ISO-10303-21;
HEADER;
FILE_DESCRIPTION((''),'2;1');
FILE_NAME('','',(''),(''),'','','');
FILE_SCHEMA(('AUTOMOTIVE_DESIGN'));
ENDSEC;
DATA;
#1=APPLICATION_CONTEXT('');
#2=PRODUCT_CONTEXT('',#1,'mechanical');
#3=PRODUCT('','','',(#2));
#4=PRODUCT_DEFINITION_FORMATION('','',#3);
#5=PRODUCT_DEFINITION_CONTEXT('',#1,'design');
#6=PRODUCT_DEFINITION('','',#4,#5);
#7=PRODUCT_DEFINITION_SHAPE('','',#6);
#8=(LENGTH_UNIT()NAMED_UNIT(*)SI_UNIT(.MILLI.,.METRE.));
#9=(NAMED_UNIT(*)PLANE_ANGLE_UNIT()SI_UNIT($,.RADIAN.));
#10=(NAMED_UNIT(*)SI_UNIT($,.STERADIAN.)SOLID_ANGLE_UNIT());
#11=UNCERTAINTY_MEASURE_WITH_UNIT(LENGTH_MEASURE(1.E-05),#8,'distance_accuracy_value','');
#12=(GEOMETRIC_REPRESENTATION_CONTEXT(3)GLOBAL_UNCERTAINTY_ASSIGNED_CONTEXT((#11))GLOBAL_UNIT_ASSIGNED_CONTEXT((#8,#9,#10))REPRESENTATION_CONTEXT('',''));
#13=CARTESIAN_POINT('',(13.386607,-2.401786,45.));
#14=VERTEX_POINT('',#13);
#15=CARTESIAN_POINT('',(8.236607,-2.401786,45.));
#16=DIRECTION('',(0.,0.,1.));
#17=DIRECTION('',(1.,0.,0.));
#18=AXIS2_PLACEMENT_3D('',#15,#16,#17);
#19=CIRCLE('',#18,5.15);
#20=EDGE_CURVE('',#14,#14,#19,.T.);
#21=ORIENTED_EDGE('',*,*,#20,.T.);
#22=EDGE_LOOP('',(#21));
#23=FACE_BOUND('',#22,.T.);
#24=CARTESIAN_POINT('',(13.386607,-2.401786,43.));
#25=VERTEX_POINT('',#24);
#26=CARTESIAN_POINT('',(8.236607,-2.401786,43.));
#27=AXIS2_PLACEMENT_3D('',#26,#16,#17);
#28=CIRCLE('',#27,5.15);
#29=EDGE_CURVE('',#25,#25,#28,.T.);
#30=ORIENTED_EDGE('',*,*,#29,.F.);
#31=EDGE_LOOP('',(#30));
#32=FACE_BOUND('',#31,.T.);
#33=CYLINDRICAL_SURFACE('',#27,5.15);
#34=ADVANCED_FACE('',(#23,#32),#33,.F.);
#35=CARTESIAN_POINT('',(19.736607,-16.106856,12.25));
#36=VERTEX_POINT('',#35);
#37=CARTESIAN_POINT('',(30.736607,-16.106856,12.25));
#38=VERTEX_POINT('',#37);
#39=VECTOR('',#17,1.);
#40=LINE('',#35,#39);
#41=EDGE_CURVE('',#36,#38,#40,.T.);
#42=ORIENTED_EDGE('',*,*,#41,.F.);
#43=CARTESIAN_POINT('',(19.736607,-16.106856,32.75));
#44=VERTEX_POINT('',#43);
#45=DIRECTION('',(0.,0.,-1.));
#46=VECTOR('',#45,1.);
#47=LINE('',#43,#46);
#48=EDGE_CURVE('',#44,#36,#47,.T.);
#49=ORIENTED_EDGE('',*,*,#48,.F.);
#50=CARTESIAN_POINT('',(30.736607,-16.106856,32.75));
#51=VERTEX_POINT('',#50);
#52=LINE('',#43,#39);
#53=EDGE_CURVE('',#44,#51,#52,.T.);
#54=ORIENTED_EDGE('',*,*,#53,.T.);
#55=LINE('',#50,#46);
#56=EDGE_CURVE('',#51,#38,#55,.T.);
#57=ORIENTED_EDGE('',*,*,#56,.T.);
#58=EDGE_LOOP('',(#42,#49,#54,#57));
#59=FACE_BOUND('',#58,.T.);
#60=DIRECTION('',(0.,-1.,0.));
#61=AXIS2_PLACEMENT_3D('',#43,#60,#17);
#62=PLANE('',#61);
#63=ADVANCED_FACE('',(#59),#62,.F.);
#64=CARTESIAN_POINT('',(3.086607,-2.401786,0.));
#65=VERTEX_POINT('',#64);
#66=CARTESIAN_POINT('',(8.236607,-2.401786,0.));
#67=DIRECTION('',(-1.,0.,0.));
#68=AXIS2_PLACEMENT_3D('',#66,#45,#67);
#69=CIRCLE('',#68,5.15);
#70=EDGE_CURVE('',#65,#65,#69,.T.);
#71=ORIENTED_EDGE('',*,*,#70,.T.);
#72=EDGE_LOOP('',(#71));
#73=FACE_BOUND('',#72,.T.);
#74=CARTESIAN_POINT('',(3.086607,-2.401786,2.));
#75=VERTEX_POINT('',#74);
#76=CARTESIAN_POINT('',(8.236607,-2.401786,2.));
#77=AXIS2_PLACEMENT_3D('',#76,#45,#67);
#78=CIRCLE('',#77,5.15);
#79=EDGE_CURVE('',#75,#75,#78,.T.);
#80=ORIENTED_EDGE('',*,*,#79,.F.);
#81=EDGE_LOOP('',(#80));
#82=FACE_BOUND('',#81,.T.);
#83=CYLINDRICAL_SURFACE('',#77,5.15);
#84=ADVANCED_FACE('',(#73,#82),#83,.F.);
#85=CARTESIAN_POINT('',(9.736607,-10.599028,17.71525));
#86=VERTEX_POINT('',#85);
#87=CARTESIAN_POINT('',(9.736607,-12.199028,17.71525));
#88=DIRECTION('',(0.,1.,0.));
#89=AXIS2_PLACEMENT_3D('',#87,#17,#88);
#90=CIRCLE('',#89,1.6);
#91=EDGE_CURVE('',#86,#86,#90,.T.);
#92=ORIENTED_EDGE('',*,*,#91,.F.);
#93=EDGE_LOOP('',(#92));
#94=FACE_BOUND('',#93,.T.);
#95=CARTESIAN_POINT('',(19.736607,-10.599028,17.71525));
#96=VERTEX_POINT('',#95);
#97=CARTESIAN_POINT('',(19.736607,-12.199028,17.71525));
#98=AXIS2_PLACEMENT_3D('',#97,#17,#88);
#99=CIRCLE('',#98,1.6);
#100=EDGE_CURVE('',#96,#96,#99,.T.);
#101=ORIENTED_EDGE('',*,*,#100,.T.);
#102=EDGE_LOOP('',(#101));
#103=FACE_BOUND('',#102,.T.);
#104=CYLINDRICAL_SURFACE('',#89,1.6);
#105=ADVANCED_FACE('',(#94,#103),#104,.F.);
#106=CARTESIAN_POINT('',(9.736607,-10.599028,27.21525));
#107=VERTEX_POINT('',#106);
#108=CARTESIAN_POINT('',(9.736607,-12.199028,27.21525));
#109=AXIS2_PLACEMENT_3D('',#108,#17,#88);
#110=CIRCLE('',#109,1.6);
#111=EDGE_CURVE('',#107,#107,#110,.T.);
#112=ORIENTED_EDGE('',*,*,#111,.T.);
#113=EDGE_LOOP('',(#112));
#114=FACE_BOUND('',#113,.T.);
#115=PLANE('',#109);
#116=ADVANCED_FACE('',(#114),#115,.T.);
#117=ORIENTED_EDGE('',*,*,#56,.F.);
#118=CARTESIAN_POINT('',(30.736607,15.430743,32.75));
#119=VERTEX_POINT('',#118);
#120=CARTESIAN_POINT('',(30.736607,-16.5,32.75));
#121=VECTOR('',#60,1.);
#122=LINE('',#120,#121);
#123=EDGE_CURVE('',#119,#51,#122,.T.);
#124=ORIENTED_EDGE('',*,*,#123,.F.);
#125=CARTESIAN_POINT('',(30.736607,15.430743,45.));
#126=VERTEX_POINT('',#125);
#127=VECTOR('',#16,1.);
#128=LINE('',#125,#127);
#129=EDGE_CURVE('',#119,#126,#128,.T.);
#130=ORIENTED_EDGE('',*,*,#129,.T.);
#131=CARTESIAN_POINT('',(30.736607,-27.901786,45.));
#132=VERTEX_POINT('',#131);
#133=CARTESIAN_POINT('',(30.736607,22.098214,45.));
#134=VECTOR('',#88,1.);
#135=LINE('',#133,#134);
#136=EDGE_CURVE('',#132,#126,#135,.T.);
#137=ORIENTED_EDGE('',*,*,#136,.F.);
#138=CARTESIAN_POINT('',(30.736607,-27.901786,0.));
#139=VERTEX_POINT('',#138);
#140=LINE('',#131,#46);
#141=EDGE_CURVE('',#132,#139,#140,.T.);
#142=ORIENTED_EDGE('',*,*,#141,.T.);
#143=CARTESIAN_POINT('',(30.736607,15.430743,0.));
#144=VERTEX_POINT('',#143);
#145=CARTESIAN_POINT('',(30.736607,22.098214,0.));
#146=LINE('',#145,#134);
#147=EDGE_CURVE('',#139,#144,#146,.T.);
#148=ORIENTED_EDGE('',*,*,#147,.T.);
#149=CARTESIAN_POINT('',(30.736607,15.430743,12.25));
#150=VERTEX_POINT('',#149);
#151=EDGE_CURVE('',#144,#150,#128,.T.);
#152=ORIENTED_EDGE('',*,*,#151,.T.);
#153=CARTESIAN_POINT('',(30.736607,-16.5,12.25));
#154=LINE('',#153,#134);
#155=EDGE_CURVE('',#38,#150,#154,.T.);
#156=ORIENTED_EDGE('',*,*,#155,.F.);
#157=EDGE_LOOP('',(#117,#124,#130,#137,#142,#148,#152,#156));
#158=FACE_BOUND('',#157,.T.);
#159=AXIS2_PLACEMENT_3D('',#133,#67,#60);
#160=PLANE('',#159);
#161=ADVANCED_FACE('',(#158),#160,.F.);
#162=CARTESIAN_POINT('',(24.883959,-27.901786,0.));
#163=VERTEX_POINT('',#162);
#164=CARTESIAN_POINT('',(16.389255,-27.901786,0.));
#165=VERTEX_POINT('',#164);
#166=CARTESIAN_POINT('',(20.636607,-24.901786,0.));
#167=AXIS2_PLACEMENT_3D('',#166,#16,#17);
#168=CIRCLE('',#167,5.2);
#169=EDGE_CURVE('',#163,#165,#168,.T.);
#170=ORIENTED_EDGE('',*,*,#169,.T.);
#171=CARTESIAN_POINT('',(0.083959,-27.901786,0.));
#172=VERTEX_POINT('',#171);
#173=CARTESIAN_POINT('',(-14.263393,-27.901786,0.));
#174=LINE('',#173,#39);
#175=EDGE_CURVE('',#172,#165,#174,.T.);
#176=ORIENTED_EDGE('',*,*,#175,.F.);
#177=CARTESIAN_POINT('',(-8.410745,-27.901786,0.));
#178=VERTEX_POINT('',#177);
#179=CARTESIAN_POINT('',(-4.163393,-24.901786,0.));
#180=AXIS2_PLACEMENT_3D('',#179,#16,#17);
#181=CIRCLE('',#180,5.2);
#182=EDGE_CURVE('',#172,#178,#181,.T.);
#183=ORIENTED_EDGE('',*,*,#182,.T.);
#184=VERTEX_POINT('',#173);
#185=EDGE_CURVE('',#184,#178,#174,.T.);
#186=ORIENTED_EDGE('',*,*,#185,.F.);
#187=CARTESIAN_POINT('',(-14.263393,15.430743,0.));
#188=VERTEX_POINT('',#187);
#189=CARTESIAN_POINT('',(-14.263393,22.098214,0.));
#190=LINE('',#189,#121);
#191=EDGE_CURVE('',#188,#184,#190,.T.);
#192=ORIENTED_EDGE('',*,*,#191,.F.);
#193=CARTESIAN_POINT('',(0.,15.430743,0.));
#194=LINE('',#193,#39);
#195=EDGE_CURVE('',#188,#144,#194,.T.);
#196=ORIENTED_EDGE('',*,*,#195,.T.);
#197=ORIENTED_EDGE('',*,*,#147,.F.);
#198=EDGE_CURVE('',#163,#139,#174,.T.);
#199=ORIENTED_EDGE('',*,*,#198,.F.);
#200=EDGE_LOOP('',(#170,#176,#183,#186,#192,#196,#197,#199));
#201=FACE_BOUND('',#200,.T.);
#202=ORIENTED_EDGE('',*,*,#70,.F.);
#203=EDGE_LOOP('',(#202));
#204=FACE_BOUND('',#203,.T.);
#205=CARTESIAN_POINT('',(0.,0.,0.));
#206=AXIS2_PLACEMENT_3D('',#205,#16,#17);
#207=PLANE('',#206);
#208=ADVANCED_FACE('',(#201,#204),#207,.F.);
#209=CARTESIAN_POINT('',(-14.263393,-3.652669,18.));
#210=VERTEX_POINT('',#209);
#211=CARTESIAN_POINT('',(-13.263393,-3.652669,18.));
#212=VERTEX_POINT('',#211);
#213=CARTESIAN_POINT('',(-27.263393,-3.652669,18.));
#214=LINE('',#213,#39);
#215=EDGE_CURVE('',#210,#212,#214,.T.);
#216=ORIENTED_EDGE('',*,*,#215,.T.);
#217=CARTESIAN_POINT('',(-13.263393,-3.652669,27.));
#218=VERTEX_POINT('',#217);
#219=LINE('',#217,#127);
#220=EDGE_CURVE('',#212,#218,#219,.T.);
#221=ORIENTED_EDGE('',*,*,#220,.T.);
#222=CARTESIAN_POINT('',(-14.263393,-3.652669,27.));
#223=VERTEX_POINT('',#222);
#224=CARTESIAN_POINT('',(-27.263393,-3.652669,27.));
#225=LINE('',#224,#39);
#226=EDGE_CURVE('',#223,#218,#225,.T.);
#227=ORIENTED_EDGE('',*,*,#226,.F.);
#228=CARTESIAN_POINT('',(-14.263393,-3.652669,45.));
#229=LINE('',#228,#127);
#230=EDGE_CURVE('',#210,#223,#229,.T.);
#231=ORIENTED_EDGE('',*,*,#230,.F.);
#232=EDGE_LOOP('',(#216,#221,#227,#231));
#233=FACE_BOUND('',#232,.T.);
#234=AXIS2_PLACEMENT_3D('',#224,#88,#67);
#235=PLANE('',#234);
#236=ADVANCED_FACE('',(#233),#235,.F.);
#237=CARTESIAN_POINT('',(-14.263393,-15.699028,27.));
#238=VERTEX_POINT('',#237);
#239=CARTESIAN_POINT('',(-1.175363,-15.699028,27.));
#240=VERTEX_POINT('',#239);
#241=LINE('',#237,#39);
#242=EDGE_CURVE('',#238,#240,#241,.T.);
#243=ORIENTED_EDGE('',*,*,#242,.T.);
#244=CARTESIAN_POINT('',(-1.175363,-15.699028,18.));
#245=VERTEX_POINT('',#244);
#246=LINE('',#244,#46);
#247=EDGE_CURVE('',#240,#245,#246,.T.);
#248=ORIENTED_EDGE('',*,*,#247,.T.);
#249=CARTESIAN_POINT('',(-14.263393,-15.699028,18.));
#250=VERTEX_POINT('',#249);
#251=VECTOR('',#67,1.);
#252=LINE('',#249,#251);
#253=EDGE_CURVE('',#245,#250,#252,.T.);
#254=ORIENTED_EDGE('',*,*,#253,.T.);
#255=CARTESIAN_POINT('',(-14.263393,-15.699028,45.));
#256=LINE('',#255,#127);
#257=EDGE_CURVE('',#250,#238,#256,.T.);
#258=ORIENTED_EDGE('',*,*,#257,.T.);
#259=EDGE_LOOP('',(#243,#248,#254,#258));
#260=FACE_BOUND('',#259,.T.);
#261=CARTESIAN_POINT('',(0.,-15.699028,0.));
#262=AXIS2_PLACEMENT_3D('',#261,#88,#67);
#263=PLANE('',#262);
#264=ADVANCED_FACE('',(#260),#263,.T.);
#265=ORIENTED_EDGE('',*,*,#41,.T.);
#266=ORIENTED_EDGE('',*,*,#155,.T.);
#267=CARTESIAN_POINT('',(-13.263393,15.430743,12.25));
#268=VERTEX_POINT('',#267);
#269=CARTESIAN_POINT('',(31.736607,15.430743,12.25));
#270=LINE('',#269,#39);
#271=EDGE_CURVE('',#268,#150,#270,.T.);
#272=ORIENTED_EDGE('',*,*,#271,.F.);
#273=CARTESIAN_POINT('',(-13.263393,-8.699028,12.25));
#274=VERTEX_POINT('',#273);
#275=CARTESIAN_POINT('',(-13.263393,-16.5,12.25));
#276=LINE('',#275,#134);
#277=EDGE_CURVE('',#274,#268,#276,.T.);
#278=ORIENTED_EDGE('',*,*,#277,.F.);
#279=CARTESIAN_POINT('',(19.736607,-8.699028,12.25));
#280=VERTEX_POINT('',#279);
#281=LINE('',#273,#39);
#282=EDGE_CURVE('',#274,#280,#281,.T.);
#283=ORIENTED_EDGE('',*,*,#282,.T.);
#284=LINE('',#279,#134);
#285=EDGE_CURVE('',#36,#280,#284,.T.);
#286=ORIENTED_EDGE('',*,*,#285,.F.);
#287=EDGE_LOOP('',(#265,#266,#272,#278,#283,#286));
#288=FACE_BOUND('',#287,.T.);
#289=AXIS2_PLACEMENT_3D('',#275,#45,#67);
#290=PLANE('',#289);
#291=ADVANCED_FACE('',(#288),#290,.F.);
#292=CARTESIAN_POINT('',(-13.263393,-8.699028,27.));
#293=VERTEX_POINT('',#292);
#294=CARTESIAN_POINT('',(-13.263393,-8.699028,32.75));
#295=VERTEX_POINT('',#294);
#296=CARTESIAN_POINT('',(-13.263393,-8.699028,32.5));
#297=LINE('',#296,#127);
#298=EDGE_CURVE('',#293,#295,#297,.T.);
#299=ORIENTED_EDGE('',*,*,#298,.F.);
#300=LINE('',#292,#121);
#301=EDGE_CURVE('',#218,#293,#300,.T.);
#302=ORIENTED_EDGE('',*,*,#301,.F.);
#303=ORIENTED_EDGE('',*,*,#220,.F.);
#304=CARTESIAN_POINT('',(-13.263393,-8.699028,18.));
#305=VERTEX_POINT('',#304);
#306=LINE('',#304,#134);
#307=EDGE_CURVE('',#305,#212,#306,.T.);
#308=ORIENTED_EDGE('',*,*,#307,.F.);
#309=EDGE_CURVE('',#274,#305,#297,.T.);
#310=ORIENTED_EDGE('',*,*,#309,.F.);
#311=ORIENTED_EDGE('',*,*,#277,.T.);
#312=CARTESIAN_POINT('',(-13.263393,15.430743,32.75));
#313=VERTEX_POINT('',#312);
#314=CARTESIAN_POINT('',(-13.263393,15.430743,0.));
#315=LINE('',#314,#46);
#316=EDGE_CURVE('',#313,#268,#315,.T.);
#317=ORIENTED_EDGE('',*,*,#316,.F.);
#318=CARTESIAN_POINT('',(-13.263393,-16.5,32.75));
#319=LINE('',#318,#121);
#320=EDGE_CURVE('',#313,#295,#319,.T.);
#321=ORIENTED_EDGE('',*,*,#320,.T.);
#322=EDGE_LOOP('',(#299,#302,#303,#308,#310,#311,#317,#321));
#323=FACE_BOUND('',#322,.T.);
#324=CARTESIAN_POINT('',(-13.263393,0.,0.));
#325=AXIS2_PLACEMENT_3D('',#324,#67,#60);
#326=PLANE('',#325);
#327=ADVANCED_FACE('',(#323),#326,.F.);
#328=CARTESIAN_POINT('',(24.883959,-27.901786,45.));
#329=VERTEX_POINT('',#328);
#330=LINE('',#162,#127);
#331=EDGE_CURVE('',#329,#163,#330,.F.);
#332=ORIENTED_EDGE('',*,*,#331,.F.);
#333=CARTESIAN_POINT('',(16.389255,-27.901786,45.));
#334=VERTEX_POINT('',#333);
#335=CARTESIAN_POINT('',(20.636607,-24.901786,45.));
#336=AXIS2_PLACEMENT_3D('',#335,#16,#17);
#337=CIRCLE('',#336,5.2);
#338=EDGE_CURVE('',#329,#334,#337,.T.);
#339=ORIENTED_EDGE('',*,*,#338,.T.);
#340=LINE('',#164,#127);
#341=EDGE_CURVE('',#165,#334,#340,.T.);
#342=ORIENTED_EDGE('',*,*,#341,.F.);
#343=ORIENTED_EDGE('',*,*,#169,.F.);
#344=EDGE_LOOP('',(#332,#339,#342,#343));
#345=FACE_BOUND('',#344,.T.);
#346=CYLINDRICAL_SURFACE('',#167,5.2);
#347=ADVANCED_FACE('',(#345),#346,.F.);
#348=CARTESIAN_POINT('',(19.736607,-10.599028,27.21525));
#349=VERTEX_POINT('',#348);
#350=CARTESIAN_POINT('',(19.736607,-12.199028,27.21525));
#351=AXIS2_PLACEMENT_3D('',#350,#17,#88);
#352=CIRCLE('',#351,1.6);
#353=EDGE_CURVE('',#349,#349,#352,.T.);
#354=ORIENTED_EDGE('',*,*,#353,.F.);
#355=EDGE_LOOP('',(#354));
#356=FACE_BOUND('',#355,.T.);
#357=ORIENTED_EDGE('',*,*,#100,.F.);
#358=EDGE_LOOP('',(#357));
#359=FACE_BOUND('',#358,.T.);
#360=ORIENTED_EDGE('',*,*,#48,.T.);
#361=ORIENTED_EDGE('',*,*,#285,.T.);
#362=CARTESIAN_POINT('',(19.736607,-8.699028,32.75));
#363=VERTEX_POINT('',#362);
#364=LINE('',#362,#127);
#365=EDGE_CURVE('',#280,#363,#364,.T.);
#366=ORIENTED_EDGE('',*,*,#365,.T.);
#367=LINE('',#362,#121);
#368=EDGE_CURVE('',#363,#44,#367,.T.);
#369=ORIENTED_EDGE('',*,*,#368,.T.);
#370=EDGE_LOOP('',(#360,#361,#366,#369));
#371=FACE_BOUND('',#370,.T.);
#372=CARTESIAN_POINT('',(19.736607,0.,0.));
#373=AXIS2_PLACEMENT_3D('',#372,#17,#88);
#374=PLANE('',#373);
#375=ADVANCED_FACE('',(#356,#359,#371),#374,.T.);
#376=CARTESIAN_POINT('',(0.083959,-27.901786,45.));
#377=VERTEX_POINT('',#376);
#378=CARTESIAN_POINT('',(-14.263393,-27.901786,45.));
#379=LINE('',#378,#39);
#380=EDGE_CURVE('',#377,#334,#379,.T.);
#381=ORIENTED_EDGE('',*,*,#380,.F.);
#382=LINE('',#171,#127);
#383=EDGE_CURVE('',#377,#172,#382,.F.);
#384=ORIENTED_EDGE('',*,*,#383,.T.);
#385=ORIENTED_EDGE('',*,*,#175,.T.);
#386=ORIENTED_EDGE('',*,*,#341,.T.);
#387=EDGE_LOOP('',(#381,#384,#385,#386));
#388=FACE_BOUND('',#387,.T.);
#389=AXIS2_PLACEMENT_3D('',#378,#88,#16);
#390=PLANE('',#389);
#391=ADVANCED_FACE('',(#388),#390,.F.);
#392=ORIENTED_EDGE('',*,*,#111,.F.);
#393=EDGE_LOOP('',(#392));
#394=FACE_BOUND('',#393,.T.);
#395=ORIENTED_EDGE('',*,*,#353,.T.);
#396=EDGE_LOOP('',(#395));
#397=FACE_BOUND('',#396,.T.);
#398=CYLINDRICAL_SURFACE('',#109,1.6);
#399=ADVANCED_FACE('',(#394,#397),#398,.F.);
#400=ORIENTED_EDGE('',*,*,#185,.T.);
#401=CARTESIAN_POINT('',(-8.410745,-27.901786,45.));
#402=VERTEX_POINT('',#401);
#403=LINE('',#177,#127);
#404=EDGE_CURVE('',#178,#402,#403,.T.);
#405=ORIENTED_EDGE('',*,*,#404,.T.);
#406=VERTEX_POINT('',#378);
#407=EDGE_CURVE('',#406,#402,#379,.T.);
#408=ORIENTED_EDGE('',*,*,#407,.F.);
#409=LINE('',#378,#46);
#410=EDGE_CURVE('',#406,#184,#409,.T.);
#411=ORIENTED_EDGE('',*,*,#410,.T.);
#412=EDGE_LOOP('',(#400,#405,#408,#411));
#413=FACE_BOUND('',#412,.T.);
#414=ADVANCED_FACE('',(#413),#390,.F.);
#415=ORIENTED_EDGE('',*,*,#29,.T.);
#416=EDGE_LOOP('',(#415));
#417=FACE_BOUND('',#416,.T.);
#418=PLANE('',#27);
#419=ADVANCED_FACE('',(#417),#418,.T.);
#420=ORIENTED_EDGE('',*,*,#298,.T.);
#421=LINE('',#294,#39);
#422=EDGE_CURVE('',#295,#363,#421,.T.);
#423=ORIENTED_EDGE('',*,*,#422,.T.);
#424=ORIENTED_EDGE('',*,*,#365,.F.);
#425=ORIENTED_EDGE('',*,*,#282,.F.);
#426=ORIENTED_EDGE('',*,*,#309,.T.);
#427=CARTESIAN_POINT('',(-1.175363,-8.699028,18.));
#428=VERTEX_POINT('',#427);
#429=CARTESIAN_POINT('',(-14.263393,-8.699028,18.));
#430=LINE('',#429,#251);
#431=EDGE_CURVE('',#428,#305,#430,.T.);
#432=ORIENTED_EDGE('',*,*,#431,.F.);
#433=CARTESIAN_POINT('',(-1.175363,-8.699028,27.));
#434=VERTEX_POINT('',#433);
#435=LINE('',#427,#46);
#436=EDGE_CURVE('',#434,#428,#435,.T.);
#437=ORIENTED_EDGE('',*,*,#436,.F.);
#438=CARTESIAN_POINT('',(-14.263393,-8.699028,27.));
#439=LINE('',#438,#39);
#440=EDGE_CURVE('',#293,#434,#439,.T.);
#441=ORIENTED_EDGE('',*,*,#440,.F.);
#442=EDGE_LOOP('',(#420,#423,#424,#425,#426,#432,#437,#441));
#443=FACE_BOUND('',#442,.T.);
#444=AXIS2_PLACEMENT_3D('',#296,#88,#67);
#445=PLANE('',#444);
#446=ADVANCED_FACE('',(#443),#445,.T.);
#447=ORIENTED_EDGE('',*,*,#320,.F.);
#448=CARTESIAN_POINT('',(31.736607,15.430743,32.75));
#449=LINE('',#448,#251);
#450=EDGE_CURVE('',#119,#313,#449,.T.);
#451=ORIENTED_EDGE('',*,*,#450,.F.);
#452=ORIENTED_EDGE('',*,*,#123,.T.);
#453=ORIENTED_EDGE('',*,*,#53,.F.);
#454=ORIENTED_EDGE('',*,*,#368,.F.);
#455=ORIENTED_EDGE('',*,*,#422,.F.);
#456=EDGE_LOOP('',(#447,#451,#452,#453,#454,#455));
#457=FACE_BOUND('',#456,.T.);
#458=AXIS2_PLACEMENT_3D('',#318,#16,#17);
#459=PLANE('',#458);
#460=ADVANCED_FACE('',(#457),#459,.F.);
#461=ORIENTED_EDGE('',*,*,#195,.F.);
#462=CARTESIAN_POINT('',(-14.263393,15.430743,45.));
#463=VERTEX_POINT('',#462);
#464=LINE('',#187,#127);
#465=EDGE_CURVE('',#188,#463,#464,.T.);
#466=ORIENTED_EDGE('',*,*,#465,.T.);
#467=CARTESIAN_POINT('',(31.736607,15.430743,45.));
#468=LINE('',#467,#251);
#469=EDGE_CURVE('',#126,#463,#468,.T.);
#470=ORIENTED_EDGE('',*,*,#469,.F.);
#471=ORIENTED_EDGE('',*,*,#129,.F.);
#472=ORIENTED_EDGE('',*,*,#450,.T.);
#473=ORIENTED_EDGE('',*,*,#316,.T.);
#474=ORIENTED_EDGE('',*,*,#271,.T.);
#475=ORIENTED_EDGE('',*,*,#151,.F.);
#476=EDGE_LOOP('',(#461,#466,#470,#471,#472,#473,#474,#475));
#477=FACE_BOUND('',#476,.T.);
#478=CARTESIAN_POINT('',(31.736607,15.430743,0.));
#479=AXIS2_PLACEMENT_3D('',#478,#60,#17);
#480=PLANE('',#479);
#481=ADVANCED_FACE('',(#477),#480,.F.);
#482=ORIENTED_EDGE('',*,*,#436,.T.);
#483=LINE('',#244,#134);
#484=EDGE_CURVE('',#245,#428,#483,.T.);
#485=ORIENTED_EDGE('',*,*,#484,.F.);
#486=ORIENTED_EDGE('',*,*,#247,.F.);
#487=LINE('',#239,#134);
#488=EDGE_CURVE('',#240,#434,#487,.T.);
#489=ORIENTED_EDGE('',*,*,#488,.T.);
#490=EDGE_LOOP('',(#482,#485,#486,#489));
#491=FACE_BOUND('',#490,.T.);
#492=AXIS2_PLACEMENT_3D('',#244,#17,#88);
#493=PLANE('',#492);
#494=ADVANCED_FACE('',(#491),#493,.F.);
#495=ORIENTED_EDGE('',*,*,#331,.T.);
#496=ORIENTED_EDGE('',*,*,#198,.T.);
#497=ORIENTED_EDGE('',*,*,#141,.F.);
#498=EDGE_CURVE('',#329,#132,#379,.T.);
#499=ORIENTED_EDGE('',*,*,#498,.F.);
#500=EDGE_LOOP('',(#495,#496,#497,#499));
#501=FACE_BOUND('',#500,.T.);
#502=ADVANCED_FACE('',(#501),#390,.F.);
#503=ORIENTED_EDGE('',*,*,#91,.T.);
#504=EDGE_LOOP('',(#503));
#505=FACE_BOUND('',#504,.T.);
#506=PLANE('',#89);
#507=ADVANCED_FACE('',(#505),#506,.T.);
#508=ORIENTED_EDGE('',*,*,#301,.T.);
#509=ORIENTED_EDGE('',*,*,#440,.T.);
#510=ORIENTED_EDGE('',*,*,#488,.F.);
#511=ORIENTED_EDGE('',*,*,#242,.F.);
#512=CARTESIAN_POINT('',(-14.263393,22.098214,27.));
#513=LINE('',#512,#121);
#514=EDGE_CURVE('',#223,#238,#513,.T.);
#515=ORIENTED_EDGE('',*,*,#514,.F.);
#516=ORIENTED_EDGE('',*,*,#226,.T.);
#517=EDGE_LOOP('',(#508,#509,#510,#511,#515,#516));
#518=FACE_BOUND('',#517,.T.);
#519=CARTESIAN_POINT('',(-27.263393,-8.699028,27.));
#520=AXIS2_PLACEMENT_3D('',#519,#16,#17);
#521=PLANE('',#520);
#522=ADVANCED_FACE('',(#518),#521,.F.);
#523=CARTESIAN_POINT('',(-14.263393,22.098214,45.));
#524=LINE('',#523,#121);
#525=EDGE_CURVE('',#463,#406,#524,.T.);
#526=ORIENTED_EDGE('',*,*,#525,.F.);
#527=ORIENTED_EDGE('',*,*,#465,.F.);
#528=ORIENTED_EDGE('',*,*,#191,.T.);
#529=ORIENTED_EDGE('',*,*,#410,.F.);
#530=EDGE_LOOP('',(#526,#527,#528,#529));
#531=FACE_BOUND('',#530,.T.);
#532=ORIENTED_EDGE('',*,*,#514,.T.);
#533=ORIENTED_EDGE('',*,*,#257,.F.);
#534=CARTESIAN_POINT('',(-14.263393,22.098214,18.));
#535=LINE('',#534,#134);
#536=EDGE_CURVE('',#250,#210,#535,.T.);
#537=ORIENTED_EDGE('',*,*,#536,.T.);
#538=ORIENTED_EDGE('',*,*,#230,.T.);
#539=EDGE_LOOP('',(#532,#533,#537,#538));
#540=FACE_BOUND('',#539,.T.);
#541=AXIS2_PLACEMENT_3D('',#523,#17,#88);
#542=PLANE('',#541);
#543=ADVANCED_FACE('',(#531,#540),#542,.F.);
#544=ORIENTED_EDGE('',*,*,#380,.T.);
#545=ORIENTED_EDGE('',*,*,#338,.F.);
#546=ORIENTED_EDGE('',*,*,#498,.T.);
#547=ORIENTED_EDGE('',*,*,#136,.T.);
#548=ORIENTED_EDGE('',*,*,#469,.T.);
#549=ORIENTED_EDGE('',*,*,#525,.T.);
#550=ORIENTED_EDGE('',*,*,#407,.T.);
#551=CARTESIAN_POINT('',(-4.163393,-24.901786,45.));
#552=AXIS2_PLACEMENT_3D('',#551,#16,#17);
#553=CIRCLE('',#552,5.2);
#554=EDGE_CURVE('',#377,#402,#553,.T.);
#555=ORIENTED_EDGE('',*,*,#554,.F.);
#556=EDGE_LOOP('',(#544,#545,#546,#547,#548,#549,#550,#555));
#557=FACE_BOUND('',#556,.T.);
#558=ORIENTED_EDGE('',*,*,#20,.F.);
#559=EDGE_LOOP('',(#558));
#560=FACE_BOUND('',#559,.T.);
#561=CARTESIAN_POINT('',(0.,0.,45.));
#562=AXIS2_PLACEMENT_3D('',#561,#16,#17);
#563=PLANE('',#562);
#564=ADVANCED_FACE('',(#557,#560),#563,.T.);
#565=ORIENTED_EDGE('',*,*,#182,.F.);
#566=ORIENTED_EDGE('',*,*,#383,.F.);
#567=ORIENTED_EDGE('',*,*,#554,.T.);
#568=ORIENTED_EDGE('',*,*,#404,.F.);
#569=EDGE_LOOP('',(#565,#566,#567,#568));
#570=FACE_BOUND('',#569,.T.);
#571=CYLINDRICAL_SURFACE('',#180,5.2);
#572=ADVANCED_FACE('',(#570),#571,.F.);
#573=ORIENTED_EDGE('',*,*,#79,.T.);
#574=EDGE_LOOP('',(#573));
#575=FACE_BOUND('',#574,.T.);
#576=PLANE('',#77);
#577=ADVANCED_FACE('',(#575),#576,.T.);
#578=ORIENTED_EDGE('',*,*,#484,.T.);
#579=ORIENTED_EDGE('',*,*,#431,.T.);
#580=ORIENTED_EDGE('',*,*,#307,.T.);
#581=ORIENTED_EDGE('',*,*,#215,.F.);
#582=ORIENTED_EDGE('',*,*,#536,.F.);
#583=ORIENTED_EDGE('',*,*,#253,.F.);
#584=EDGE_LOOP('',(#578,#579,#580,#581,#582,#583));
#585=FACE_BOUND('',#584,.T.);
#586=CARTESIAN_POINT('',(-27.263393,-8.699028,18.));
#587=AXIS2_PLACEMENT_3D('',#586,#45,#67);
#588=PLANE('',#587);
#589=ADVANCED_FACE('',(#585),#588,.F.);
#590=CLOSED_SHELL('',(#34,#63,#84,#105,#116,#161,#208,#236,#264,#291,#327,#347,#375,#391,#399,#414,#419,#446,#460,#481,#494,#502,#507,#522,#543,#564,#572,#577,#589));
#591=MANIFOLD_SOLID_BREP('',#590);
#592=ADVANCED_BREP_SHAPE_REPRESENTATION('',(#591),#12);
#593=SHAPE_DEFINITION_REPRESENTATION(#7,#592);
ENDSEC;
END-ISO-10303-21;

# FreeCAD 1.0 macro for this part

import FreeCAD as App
import Part
import Sketcher

doc = App.newDocument("Part")
params = doc.addObject("Spreadsheet::Sheet", "Params")
for row, (alias, value) in enumerate([
    ("sketch1_width", "45 mm"),
    ("sketch1_height", "50 mm"),
    ("pad1_length", "45 mm"),
    ("sketch2_diameter", "10.4 mm"),
    ("pocket1_length", "45 mm"),
    ("sketch3_diameter", "10.3 mm"),
    ("pocket2_length", "2 mm"),
    ("sketch4_diameter", "10.3 mm"),
    ("pocket3_length", "2 mm"),
    ("sketch5_diameter", "25.4 mm"),
    ("pocket4_length", "46 mm"),
    ("sketch6_height", "45 mm"),
    ("pocket5_length", "46 mm"),
    ("sketch7_diameter", "26.5 mm"),
    ("sketch7_diameter2", "7.5 mm"),
    ("pad2_length", "2 mm"),
    ("sketch8_diameter", "25.4 mm"),
    ("pad3_length", "45 mm"),
    ("sketch9_width", "40.5 mm"),
    ("sketch9_height", "20.5 mm"),
    ("pocket6_length", "44 mm"),
    ("sketch10_diameter", "4.3 mm"),
    ("sketch10_height", "20.5 mm"),
    ("pad4_length", "44 mm"),
    ("sketch11_height", "8 mm"),
    ("pocket7_length", "7 mm"),
    ("sketch12_diameter", "4.3 mm"),
    ("pad5_length", "44 mm"),
    ("sketch13_diameter", "4.3 mm"),
    ("pocket8_length", "10 mm"),
    ("sketch14_width", "7 mm"),
    ("sketch14_height", "8 mm"),
    ("pocket9_length", "7 mm"),
    ("pocket9_length2", "7 mm"),
    ("sketch15_height", "20.5 mm"),
    ("pocket10_length", "11 mm"),
    ("sketch16_height", "9 mm"),
    ("pocket11_length", "14 mm"),
    ("sketch17_height", "9 mm"),
    ("pocket12_length", "7 mm"),
    ("sketch18_diameter", "3.2 mm"),
    ("pocket13_length", "10 mm"),
    ("sketch19_width", "5 mm"),
    ("sketch19_height", "9 mm"),
    ("pocket14_length", "7 mm"),
], start=1):
    params.set(f"A{row}", alias)
    params.set(f"B{row}", "=" + value)
    params.setAlias(f"B{row}", alias)

body = doc.addObject("PartDesign::Body", "Body")

# Sketch on XY plane
sketch1 = body.newObject("Sketcher::SketchObject", "Sketch")
sketch1.AttachmentSupport = (doc.getObject("XY_Plane"), [""])
sketch1.MapMode = "FlatFace"
sketch1.addGeometry([
    Part.LineSegment(App.Vector(-14, 22, 0), App.Vector(-14, -28, 0)),
    Part.LineSegment(App.Vector(-14, -28, 0), App.Vector(31, -28, 0)),
    Part.LineSegment(App.Vector(31, -28, 0), App.Vector(31, 22, 0)),
    Part.LineSegment(App.Vector(31, 22, 0), App.Vector(-14, 22, 0)),
], False)
sketch1.addConstraint([
    Sketcher.Constraint("Coincident", 0, 2, 1, 1),
    Sketcher.Constraint("Coincident", 1, 2, 2, 1),
    Sketcher.Constraint("Coincident", 2, 2, 3, 1),
    Sketcher.Constraint("Coincident", 3, 2, 0, 1),
    Sketcher.Constraint("Vertical", 0),
    Sketcher.Constraint("Horizontal", 1),
    Sketcher.Constraint("Vertical", 2),
    Sketcher.Constraint("Horizontal", 3),
    Sketcher.Constraint("DistanceX", 1, 1, 1, 2, 45.0),
    Sketcher.Constraint("DistanceY", 0, 2, 0, 1, 50.0),
    Sketcher.Constraint("DistanceX", 0, 2, -1, 1, 14.263393),
    Sketcher.Constraint("DistanceY", 0, 2, -1, 1, 27.901786),
])
sketch1.setExpression("Constraints[8]", "Params.sketch1_width")
sketch1.setExpression("Constraints[9]", "Params.sketch1_height")
pad1 = body.newObject("PartDesign::Pad", "Pad")
pad1.Profile = sketch1
pad1.setExpression("Length", "Params.pad1_length")

# Sketch on XY plane
sketch2 = body.newObject("Sketcher::SketchObject", "Sketch001")
sketch2.AttachmentSupport = (doc.getObject("XY_Plane"), [""])
sketch2.MapMode = "FlatFace"
sketch2.AttachmentOffset = App.Placement(App.Vector(0, 0, 45), App.Rotation())
sketch2.addGeometry([
    Part.Circle(App.Vector(-4, -25, 0), App.Vector(0, 0, 1), 5),
    Part.Circle(App.Vector(21, -25, 0), App.Vector(0, 0, 1), 5),
], False)
sketch2.addConstraint([
    Sketcher.Constraint("Equal", 0, 1),
    Sketcher.Constraint("Horizontal", 0, 3, 1, 3),
    Sketcher.Constraint("Diameter", 0, 10.4),
    Sketcher.Constraint("DistanceX", 0, 3, 1, 3, 24.8),
    Sketcher.Constraint("DistanceX", 0, 3, -1, 1, 4.163393),
    Sketcher.Constraint("DistanceY", 0, 3, -1, 1, 24.901786),
])
sketch2.setExpression("Constraints[2]", "Params.sketch2_diameter")
pocket1 = body.newObject("PartDesign::Pocket", "Pocket")
pocket1.Profile = sketch2
pocket1.setExpression("Length", "Params.pocket1_length")

# Sketch on XY plane
sketch3 = body.newObject("Sketcher::SketchObject", "Sketch002")
sketch3.AttachmentSupport = (doc.getObject("XY_Plane"), [""])
sketch3.MapMode = "FlatFace"
sketch3.AttachmentOffset = App.Placement(App.Vector(0, 0, 45), App.Rotation())
sketch3.addGeometry(Part.Circle(App.Vector(8, -2, 0), App.Vector(0, 0, 1), 5), False)
sketch3.addConstraint([
    Sketcher.Constraint("Diameter", 0, 10.3),
    Sketcher.Constraint("DistanceX", -1, 1, 0, 3, 8.236607),
    Sketcher.Constraint("DistanceY", 0, 3, -1, 1, 2.401786),
])
sketch3.setExpression("Constraints[0]", "Params.sketch3_diameter")
pocket2 = body.newObject("PartDesign::Pocket", "Pocket001")
pocket2.Profile = sketch3
pocket2.setExpression("Length", "Params.pocket2_length")

# Sketch on XY plane
sketch4 = body.newObject("Sketcher::SketchObject", "Sketch003")
sketch4.AttachmentSupport = (doc.getObject("XY_Plane"), [""])
sketch4.MapMode = "FlatFace"
sketch4.addGeometry(Part.Circle(App.Vector(8, -2, 0), App.Vector(0, 0, 1), 5), False)
sketch4.addConstraint([
    Sketcher.Constraint("Diameter", 0, 10.3),
    Sketcher.Constraint("DistanceX", -1, 1, 0, 3, 8.236607),
    Sketcher.Constraint("DistanceY", 0, 3, -1, 1, 2.401786),
])
sketch4.setExpression("Constraints[0]", "Params.sketch4_diameter")
pocket3 = body.newObject("PartDesign::Pocket", "Pocket002")
pocket3.Profile = sketch4
pocket3.setExpression("Length", "Params.pocket3_length")
pocket3.Reversed = True

# Sketch on YZ plane
sketch5 = body.newObject("Sketcher::SketchObject", "Sketch004")
sketch5.AttachmentSupport = (doc.getObject("YZ_Plane"), [""])
sketch5.MapMode = "FlatFace"
sketch5.AttachmentOffset = App.Placement(App.Vector(0, 0, -14.263393), App.Rotation())
sketch5.addGeometry(Part.Circle(App.Vector(0, 22, 0), App.Vector(0, 0, 1), 13), False)
sketch5.addConstraint([
    Sketcher.Constraint("PointOnObject", 0, 3, -2),
    Sketcher.Constraint("Diameter", 0, 25.4),
    Sketcher.Constraint("DistanceY", -1, 1, 0, 3, 22.5),
])
sketch5.setExpression("Constraints[1]", "Params.sketch5_diameter")
pocket4 = body.newObject("PartDesign::Pocket", "Pocket003")
pocket4.Profile = sketch5
pocket4.setExpression("Length", "Params.pocket4_length")
pocket4.Reversed = True

# Sketch on YZ plane
sketch6 = body.newObject("Sketcher::SketchObject", "Sketch005")
sketch6.AttachmentSupport = (doc.getObject("YZ_Plane"), [""])
sketch6.MapMode = "FlatFace"
sketch6.AttachmentOffset = App.Placement(App.Vector(0, 0, -14.263393), App.Rotation())
sketch6.addGeometry([
    Part.LineSegment(App.Vector(22, 0, 0), App.Vector(15, 0, 0)),
    Part.LineSegment(App.Vector(15, 0, 0), App.Vector(15, 45, 0)),
    Part.LineSegment(App.Vector(15, 45, 0), App.Vector(22, 45, 0)),
    Part.LineSegment(App.Vector(22, 45, 0), App.Vector(22, 0, 0)),
], False)
sketch6.addConstraint([
    Sketcher.Constraint("Coincident", 0, 2, 1, 1),
    Sketcher.Constraint("Coincident", 1, 2, 2, 1),
    Sketcher.Constraint("Coincident", 2, 2, 3, 1),
    Sketcher.Constraint("Coincident", 3, 2, 0, 1),
    Sketcher.Constraint("Horizontal", 0),
    Sketcher.Constraint("Vertical", 1),
    Sketcher.Constraint("Horizontal", 2),
    Sketcher.Constraint("Vertical", 3),
    Sketcher.Constraint("PointOnObject", 0, 2, -1),
    Sketcher.Constraint("DistanceY", 1, 1, 1, 2, 45.0),
    Sketcher.Constraint("DistanceX", 0, 2, 0, 1, 6.667471),
    Sketcher.Constraint("DistanceX", -1, 1, 0, 2, 15.430743),
])
sketch6.setExpression("Constraints[9]", "Params.sketch6_height")
pocket5 = body.newObject("PartDesign::Pocket", "Pocket004")
pocket5.Profile = sketch6
pocket5.setExpression("Length", "Params.pocket5_length")
pocket5.Reversed = True

# Sketch on YZ plane
sketch7 = body.newObject("Sketcher::SketchObject", "Sketch006")
sketch7.AttachmentSupport = (doc.getObject("YZ_Plane"), [""])
sketch7.MapMode = "FlatFace"
sketch7.AttachmentOffset = App.Placement(App.Vector(0, 0, 30.736607), App.Rotation())
sketch7.addGeometry([
    Part.Circle(App.Vector(0, 22.5, 0), App.Vector(0, 0, 1), 13.2),
    Part.Circle(App.Vector(0, 22.5, 0), App.Vector(0, 0, 1), 3.8),
], False)
sketch7.addConstraint([
    Sketcher.Constraint("Coincident", 1, 3, 0, 3),
    Sketcher.Constraint("PointOnObject", 0, 3, -2),
    Sketcher.Constraint("Diameter", 0, 26.5),
    Sketcher.Constraint("Diameter", 1, 7.5),
    Sketcher.Constraint("DistanceY", -1, 1, 0, 3, 22.5),
])
sketch7.setExpression("Constraints[2]", "Params.sketch7_diameter")
sketch7.setExpression("Constraints[3]", "Params.sketch7_diameter2")
pad2 = body.newObject("PartDesign::Pad", "Pad001")
pad2.Profile = sketch7
pad2.setExpression("Length", "Params.pad2_length")
pad2.Reversed = True

# Sketch on YZ plane
sketch8 = body.newObject("Sketcher::SketchObject", "Sketch007")
sketch8.AttachmentSupport = (doc.getObject("YZ_Plane"), [""])
sketch8.MapMode = "FlatFace"
sketch8.AttachmentOffset = App.Placement(App.Vector(0, 0, -14.263393), App.Rotation())
sketch8.addGeometry(Part.Circle(App.Vector(0, 22, 0), App.Vector(0, 0, 1), 13), False)
sketch8.addConstraint([
    Sketcher.Constraint("PointOnObject", 0, 3, -2),
    Sketcher.Constraint("Diameter", 0, 25.4),
    Sketcher.Constraint("DistanceY", -1, 1, 0, 3, 22.5),
])
sketch8.setExpression("Constraints[1]", "Params.sketch8_diameter")
pad3 = body.newObject("PartDesign::Pad", "Pad002")
pad3.Profile = sketch8
pad3.setExpression("Length", "Params.pad3_length")

# Sketch on YZ plane
sketch9 = body.newObject("Sketcher::SketchObject", "Sketch008")
sketch9.AttachmentSupport = (doc.getObject("YZ_Plane"), [""])
sketch9.MapMode = "FlatFace"
sketch9.AttachmentOffset = App.Placement(App.Vector(0, 0, 30.736607), App.Rotation())
sketch9.addGeometry([
    Part.LineSegment(App.Vector(24, 33, 0), App.Vector(-16, 33, 0)),
    Part.LineSegment(App.Vector(-16, 33, 0), App.Vector(-16, 12, 0)),
    Part.LineSegment(App.Vector(-16, 12, 0), App.Vector(24, 12, 0)),
    Part.LineSegment(App.Vector(24, 12, 0), App.Vector(24, 33, 0)),
], False)
sketch9.addConstraint([
    Sketcher.Constraint("Coincident", 0, 2, 1, 1),
    Sketcher.Constraint("Coincident", 1, 2, 2, 1),
    Sketcher.Constraint("Coincident", 2, 2, 3, 1),
    Sketcher.Constraint("Coincident", 3, 2, 0, 1),
    Sketcher.Constraint("Horizontal", 0),
    Sketcher.Constraint("Vertical", 1),
    Sketcher.Constraint("Horizontal", 2),
    Sketcher.Constraint("Vertical", 3),
    Sketcher.Constraint("DistanceX", 0, 2, 0, 1, 40.5),
    Sketcher.Constraint("DistanceY", 1, 2, 1, 1, 20.5),
    Sketcher.Constraint("DistanceX", -1, 1, 2, 2, 24.0),
    Sketcher.Constraint("DistanceY", -1, 1, 0, 2, 32.75),
])
sketch9.setExpression("Constraints[8]", "Params.sketch9_width")
sketch9.setExpression("Constraints[9]", "Params.sketch9_height")
pocket6 = body.newObject("PartDesign::Pocket", "Pocket005")
pocket6.Profile = sketch9
pocket6.setExpression("Length", "Params.pocket6_length")

# Sketch on YZ plane
sketch10 = body.newObject("Sketcher::SketchObject", "Sketch009")
sketch10.AttachmentSupport = (doc.getObject("YZ_Plane"), [""])
sketch10.MapMode = "FlatFace"
sketch10.AttachmentOffset = App.Placement(App.Vector(0, 0, 30.736607), App.Rotation())
sketch10.addGeometry([
    Part.LineSegment(App.Vector(-8.7, 12.2, 0), App.Vector(-8.7, 32.8, 0)),  # 0
    Part.LineSegment(App.Vector(-8.7, 32.8, 0), App.Vector(-16.5, 32.8, 0)),  # 1
    Part.LineSegment(App.Vector(-16.5, 32.8, 0), App.Vector(-16.5, 12.2, 0)),  # 2
    Part.LineSegment(App.Vector(-16.5, 12.2, 0), App.Vector(-8.7, 12.2, 0)),  # 3
    Part.Circle(App.Vector(-10.9, 17.7, 0), App.Vector(0, 0, 1), 2.1),  # 4
    Part.Circle(App.Vector(-10.9, 27.2, 0), App.Vector(0, 0, 1), 2.1),  # 5
], False)
sketch10.addConstraint([
    Sketcher.Constraint("Coincident", 0, 2, 1, 1),
    Sketcher.Constraint("Coincident", 1, 2, 2, 1),
    Sketcher.Constraint("Coincident", 2, 2, 3, 1),
    Sketcher.Constraint("Coincident", 3, 2, 0, 1),
    Sketcher.Constraint("Vertical", 0),
    Sketcher.Constraint("Horizontal", 1),
    Sketcher.Constraint("Vertical", 2),
    Sketcher.Constraint("Horizontal", 3),
    Sketcher.Constraint("Equal", 4, 5),
    Sketcher.Constraint("Vertical", 4, 3, 5, 3),
    Sketcher.Constraint("Diameter", 4, 4.3),
    Sketcher.Constraint("DistanceY", 0, 1, 0, 2, 20.5),
    Sketcher.Constraint("DistanceX", 1, 2, -1, 1, 16.5),
    Sketcher.Constraint("DistanceY", 4, 3, 5, 3, 9.5),
    Sketcher.Constraint("DistanceY", -1, 1, 0, 2, 32.75),
    Sketcher.Constraint("DistanceX", 5, 3, 0, 2, 2.25),
    Sketcher.Constraint("DistanceX", 1, 2, 1, 1, 7.800972),
    Sketcher.Constraint("DistanceY", -1, 1, 4, 3, 17.71525),
])
sketch10.setExpression("Constraints[10]", "Params.sketch10_diameter")
sketch10.setExpression("Constraints[11]", "Params.sketch10_height")
pad4 = body.newObject("PartDesign::Pad", "Pad003")
pad4.Profile = sketch10
pad4.setExpression("Length", "Params.pad4_length")
pad4.Reversed = True

# Sketch on XZ plane
sketch11 = body.newObject("Sketcher::SketchObject", "Sketch010")
sketch11.AttachmentSupport = (doc.getObject("XZ_Plane"), [""])
sketch11.MapMode = "FlatFace"
sketch11.AttachmentOffset = App.Placement(App.Vector(0, 0, 8.699028), App.Rotation())
sketch11.addGeometry([
    Part.LineSegment(App.Vector(-13, 18, 0), App.Vector(-13, 26, 0)),
    Part.LineSegment(App.Vector(-13, 26, 0), App.Vector(-8, 26, 0)),
    Part.LineSegment(App.Vector(-8, 26, 0), App.Vector(-8, 18, 0)),
    Part.LineSegment(App.Vector(-8, 18, 0), App.Vector(-13, 18, 0)),
], False)
sketch11.addConstraint([
    Sketcher.Constraint("Coincident", 0, 2, 1, 1),
    Sketcher.Constraint("Coincident", 1, 2, 2, 1),
    Sketcher.Constraint("Coincident", 2, 2, 3, 1),
    Sketcher.Constraint("Coincident", 3, 2, 0, 1),
    Sketcher.Constraint("Vertical", 0),
    Sketcher.Constraint("Horizontal", 1),
    Sketcher.Constraint("Vertical", 2),
    Sketcher.Constraint("Horizontal", 3),
    Sketcher.Constraint("DistanceY", 0, 1, 0, 2, 8.0),
    Sketcher.Constraint("DistanceY", -1, 1, 0, 2, 26.5),
    Sketcher.Constraint("DistanceX", 1, 1, 1, 2, 5.127086),
    Sketcher.Constraint("DistanceX", 0, 2, -1, 1, 13.263393),
])
sketch11.setExpression("Constraints[8]", "Params.sketch11_height")
pocket7 = body.newObject("PartDesign::Pocket", "Pocket006")
pocket7.Profile = sketch11
pocket7.setExpression("Length", "Params.pocket7_length")
pocket7.Reversed = True

# Sketch on YZ plane
sketch12 = body.newObject("Sketcher::SketchObject", "Sketch011")
sketch12.AttachmentSupport = (doc.getObject("YZ_Plane"), [""])
sketch12.MapMode = "FlatFace"
sketch12.AttachmentOffset = App.Placement(App.Vector(0, 0, 30.736607), App.Rotation())
sketch12.addGeometry([
    Part.Circle(App.Vector(-10.9, 27.2, 0), App.Vector(0, 0, 1), 2.1),
    Part.Circle(App.Vector(-10.9, 17.7, 0), App.Vector(0, 0, 1), 2.1),
], False)
sketch12.addConstraint([
    Sketcher.Constraint("Equal", 0, 1),
    Sketcher.Constraint("Vertical", 0, 3, 1, 3),
    Sketcher.Constraint("Diameter", 0, 4.3),
    Sketcher.Constraint("DistanceY", 1, 3, 0, 3, 9.5),
    Sketcher.Constraint("DistanceY", -1, 1, 0, 3, 27.21525),
    Sketcher.Constraint("DistanceX", 0, 3, -1, 1, 10.949028),
])
sketch12.setExpression("Constraints[2]", "Params.sketch12_diameter")
pad5 = body.newObject("PartDesign::Pad", "Pad004")
pad5.Profile = sketch12
pad5.setExpression("Length", "Params.pad5_length")
pad5.Reversed = True

# Sketch on YZ plane
sketch13 = body.newObject("Sketcher::SketchObject", "Sketch012")
sketch13.AttachmentSupport = (doc.getObject("YZ_Plane"), [""])
sketch13.MapMode = "FlatFace"
sketch13.AttachmentOffset = App.Placement(App.Vector(0, 0, 30.736607), App.Rotation())
sketch13.addGeometry([
    Part.Circle(App.Vector(-12.2, 27.2, 0), App.Vector(0, 0, 1), 2.1),
    Part.Circle(App.Vector(-12.2, 17.7, 0), App.Vector(0, 0, 1), 2.1),
], False)
sketch13.addConstraint([
    Sketcher.Constraint("Equal", 0, 1),
    Sketcher.Constraint("Vertical", 0, 3, 1, 3),
    Sketcher.Constraint("Diameter", 0, 4.3),
    Sketcher.Constraint("DistanceY", 1, 3, 0, 3, 9.5),
    Sketcher.Constraint("DistanceY", -1, 1, 0, 3, 27.21525),
    Sketcher.Constraint("DistanceX", 0, 3, -1, 1, 12.199028),
])
sketch13.setExpression("Constraints[2]", "Params.sketch13_diameter")
pocket8 = body.newObject("PartDesign::Pocket", "Pocket007")
pocket8.Profile = sketch13
pocket8.setExpression("Length", "Params.pocket8_length")

# Sketch on YZ plane
sketch14 = body.newObject("Sketcher::SketchObject", "Sketch013")
sketch14.AttachmentSupport = (doc.getObject("YZ_Plane"), [""])
sketch14.MapMode = "FlatFace"
sketch14.AttachmentOffset = App.Placement(App.Vector(0, 0, -13.263393), App.Rotation())
sketch14.addGeometry([
    Part.LineSegment(App.Vector(-9, 26, 0), App.Vector(-16, 26, 0)),
    Part.LineSegment(App.Vector(-16, 26, 0), App.Vector(-16, 18, 0)),
    Part.LineSegment(App.Vector(-16, 18, 0), App.Vector(-9, 18, 0)),
    Part.LineSegment(App.Vector(-9, 18, 0), App.Vector(-9, 26, 0)),
], False)
sketch14.addConstraint([
    Sketcher.Constraint("Coincident", 0, 2, 1, 1),
    Sketcher.Constraint("Coincident", 1, 2, 2, 1),
    Sketcher.Constraint("Coincident", 2, 2, 3, 1),
    Sketcher.Constraint("Coincident", 3, 2, 0, 1),
    Sketcher.Constraint("Horizontal", 0),
    Sketcher.Constraint("Vertical", 1),
    Sketcher.Constraint("Horizontal", 2),
    Sketcher.Constraint("Vertical", 3),
    Sketcher.Constraint("DistanceX", 0, 2, 0, 1, 7.0),
    Sketcher.Constraint("DistanceY", 1, 2, 1, 1, 8.0),
    Sketcher.Constraint("DistanceY", -1, 1, 0, 2, 26.5),
    Sketcher.Constraint("DistanceX", 0, 2, -1, 1, 15.699028),
])
sketch14.setExpression("Constraints[8]", "Params.sketch14_width")
sketch14.setExpression("Constraints[9]", "Params.sketch14_height")
pocket9 = body.newObject("PartDesign::Pocket", "Pocket008")
pocket9.Profile = sketch14
pocket9.Type = "TwoLengths"
pocket9.setExpression("Length", "Params.pocket9_length")
pocket9.setExpression("Length2", "Params.pocket9_length2")
pocket9.Reversed = True

# Sketch on YZ plane
sketch15 = body.newObject("Sketcher::SketchObject", "Sketch014")
sketch15.AttachmentSupport = (doc.getObject("YZ_Plane"), [""])
sketch15.MapMode = "FlatFace"
sketch15.AttachmentOffset = App.Placement(App.Vector(0, 0, 30.736607), App.Rotation())
sketch15.addGeometry([
    Part.LineSegment(App.Vector(-9, 33, 0), App.Vector(-16, 33, 0)),
    Part.LineSegment(App.Vector(-16, 33, 0), App.Vector(-16, 12, 0)),
    Part.LineSegment(App.Vector(-16, 12, 0), App.Vector(-9, 12, 0)),
    Part.LineSegment(App.Vector(-9, 12, 0), App.Vector(-9, 33, 0)),
], False)
sketch15.addConstraint([
    Sketcher.Constraint("Coincident", 0, 2, 1, 1),
    Sketcher.Constraint("Coincident", 1, 2, 2, 1),
    Sketcher.Constraint("Coincident", 2, 2, 3, 1),
    Sketcher.Constraint("Coincident", 3, 2, 0, 1),
    Sketcher.Constraint("Horizontal", 0),
    Sketcher.Constraint("Vertical", 1),
    Sketcher.Constraint("Horizontal", 2),
    Sketcher.Constraint("Vertical", 3),
    Sketcher.Constraint("DistanceY", 1, 2, 1, 1, 20.5),
    Sketcher.Constraint("DistanceY", -1, 1, 0, 2, 32.75),
    Sketcher.Constraint("DistanceX", 0, 2, 0, 1, 7.407829),
    Sketcher.Constraint("DistanceX", 0, 2, -1, 1, 16.106856),
])
sketch15.setExpression("Constraints[8]", "Params.sketch15_height")
pocket10 = body.newObject("PartDesign::Pocket", "Pocket009")
pocket10.Profile = sketch15
pocket10.setExpression("Length", "Params.pocket10_length")

# Sketch on YZ plane
sketch16 = body.newObject("Sketcher::SketchObject", "Sketch015")
sketch16.AttachmentSupport = (doc.getObject("YZ_Plane"), [""])
sketch16.MapMode = "FlatFace"
sketch16.AttachmentOffset = App.Placement(App.Vector(0, 0, -13.263393), App.Rotation())
sketch16.addGeometry([
    Part.LineSegment(App.Vector(-4, 27, 0), App.Vector(-9, 27, 0)),
    Part.LineSegment(App.Vector(-9, 27, 0), App.Vector(-9, 18, 0)),
    Part.LineSegment(App.Vector(-9, 18, 0), App.Vector(-4, 18, 0)),
    Part.LineSegment(App.Vector(-4, 18, 0), App.Vector(-4, 27, 0)),
], False)
sketch16.addConstraint([
    Sketcher.Constraint("Coincident", 0, 2, 1, 1),
    Sketcher.Constraint("Coincident", 1, 2, 2, 1),
    Sketcher.Constraint("Coincident", 2, 2, 3, 1),
    Sketcher.Constraint("Coincident", 3, 2, 0, 1),
    Sketcher.Constraint("Horizontal", 0),
    Sketcher.Constraint("Vertical", 1),
    Sketcher.Constraint("Horizontal", 2),
    Sketcher.Constraint("Vertical", 3),
    Sketcher.Constraint("DistanceY", 1, 2, 1, 1, 9.0),
    Sketcher.Constraint("DistanceY", -1, 1, 0, 2, 27.0),
    Sketcher.Constraint("DistanceX", 0, 2, 0, 1, 5.046358),
    Sketcher.Constraint("DistanceX", 2, 2, -1, 1, 3.652669),
])
sketch16.setExpression("Constraints[8]", "Params.sketch16_height")
pocket11 = body.newObject("PartDesign::Pocket", "Pocket010")
pocket11.Profile = sketch16
pocket11.setExpression("Length", "Params.pocket11_length")

# Sketch on XZ plane
sketch17 = body.newObject("Sketcher::SketchObject", "Sketch016")
sketch17.AttachmentSupport = (doc.getObject("XZ_Plane"), [""])
sketch17.MapMode = "FlatFace"
sketch17.AttachmentOffset = App.Placement(App.Vector(0, 0, 8.699028), App.Rotation())
sketch17.addGeometry([
    Part.LineSegment(App.Vector(-14, 18, 0), App.Vector(-14, 27, 0)),
    Part.LineSegment(App.Vector(-14, 27, 0), App.Vector(-6, 27, 0)),
    Part.LineSegment(App.Vector(-6, 27, 0), App.Vector(-6, 18, 0)),
    Part.LineSegment(App.Vector(-6, 18, 0), App.Vector(-14, 18, 0)),
], False)
sketch17.addConstraint([
    Sketcher.Constraint("Coincident", 0, 2, 1, 1),
    Sketcher.Constraint("Coincident", 1, 2, 2, 1),
    Sketcher.Constraint("Coincident", 2, 2, 3, 1),
    Sketcher.Constraint("Coincident", 3, 2, 0, 1),
    Sketcher.Constraint("Vertical", 0),
    Sketcher.Constraint("Horizontal", 1),
    Sketcher.Constraint("Vertical", 2),
    Sketcher.Constraint("Horizontal", 3),
    Sketcher.Constraint("DistanceY", 0, 1, 0, 2, 9.0),
    Sketcher.Constraint("DistanceY", -1, 1, 0, 2, 27.0),
    Sketcher.Constraint("DistanceX", 1, 1, 1, 2, 8.08803),
    Sketcher.Constraint("DistanceX", 0, 2, -1, 1, 14.263393),
])
sketch17.setExpression("Constraints[8]", "Params.sketch17_height")
pocket12 = body.newObject("PartDesign::Pocket", "Pocket011")
pocket12.Profile = sketch17
pocket12.setExpression("Length", "Params.pocket12_length")
pocket12.Reversed = True

# Sketch on YZ plane
sketch18 = body.newObject("Sketcher::SketchObject", "Sketch017")
sketch18.AttachmentSupport = (doc.getObject("YZ_Plane"), [""])
sketch18.MapMode = "FlatFace"
sketch18.AttachmentOffset = App.Placement(App.Vector(0, 0, 19.736607), App.Rotation())
sketch18.addGeometry([
    Part.Circle(App.Vector(-12.2, 27.2, 0), App.Vector(0, 0, 1), 1.6),
    Part.Circle(App.Vector(-12.2, 17.7, 0), App.Vector(0, 0, 1), 1.6),
], False)
sketch18.addConstraint([
    Sketcher.Constraint("Equal", 0, 1),
    Sketcher.Constraint("Vertical", 0, 3, 1, 3),
    Sketcher.Constraint("Diameter", 0, 3.2),
    Sketcher.Constraint("DistanceY", 1, 3, 0, 3, 9.5),
    Sketcher.Constraint("DistanceY", -1, 1, 0, 3, 27.21525),
    Sketcher.Constraint("DistanceX", 0, 3, -1, 1, 12.199028),
])
sketch18.setExpression("Constraints[2]", "Params.sketch18_diameter")
pocket13 = body.newObject("PartDesign::Pocket", "Pocket012")
pocket13.Profile = sketch18
pocket13.setExpression("Length", "Params.pocket13_length")

# Sketch on XZ plane
sketch19 = body.newObject("Sketcher::SketchObject", "Sketch018")
sketch19.AttachmentSupport = (doc.getObject("XZ_Plane"), [""])
sketch19.MapMode = "FlatFace"
sketch19.AttachmentOffset = App.Placement(App.Vector(0, 0, 8.699028), App.Rotation())
sketch19.addGeometry([
    Part.LineSegment(App.Vector(-6, 18, 0), App.Vector(-6, 27, 0)),
    Part.LineSegment(App.Vector(-6, 27, 0), App.Vector(-1, 27, 0)),
    Part.LineSegment(App.Vector(-1, 27, 0), App.Vector(-1, 18, 0)),
    Part.LineSegment(App.Vector(-1, 18, 0), App.Vector(-6, 18, 0)),
], False)
sketch19.addConstraint([
    Sketcher.Constraint("Coincident", 0, 2, 1, 1),
    Sketcher.Constraint("Coincident", 1, 2, 2, 1),
    Sketcher.Constraint("Coincident", 2, 2, 3, 1),
    Sketcher.Constraint("Coincident", 3, 2, 0, 1),
    Sketcher.Constraint("Vertical", 0),
    Sketcher.Constraint("Horizontal", 1),
    Sketcher.Constraint("Vertical", 2),
    Sketcher.Constraint("Horizontal", 3),
    Sketcher.Constraint("DistanceX", 1, 1, 1, 2, 5.0),
    Sketcher.Constraint("DistanceY", 0, 1, 0, 2, 9.0),
    Sketcher.Constraint("DistanceY", -1, 1, 0, 2, 27.0),
    Sketcher.Constraint("DistanceX", 0, 2, -1, 1, 6.175363),
])
sketch19.setExpression("Constraints[8]", "Params.sketch19_width")
sketch19.setExpression("Constraints[9]", "Params.sketch19_height")
pocket14 = body.newObject("PartDesign::Pocket", "Pocket013")
pocket14.Profile = sketch19
pocket14.setExpression("Length", "Params.pocket14_length")
pocket14.Reversed = True

doc.recompute()
